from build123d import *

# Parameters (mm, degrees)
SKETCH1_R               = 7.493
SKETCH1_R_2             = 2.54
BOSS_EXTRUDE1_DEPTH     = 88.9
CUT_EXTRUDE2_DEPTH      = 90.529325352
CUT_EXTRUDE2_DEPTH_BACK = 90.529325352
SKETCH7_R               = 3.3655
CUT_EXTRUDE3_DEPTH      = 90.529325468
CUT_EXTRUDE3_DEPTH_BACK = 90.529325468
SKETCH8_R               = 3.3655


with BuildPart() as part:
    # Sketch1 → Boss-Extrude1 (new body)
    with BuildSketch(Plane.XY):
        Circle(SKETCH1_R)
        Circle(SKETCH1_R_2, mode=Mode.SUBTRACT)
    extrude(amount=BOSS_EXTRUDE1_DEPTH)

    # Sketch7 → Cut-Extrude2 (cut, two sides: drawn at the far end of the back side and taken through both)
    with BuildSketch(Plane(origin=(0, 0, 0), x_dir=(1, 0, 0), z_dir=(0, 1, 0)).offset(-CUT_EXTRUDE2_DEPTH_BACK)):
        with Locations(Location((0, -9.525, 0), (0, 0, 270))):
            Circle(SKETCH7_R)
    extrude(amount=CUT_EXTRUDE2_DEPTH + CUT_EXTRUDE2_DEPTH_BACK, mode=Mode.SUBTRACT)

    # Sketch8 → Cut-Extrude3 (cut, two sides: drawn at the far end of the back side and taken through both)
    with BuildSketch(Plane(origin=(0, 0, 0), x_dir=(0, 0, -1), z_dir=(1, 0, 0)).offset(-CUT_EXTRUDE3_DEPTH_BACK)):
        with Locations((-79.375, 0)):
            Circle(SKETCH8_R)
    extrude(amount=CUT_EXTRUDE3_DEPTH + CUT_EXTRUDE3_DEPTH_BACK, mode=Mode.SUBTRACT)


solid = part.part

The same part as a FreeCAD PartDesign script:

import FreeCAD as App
import Part
import Sketcher

V = App.Vector
Q = App.Units.Quantity

doc = App.newDocument("Part")
body = doc.addObject("PartDesign::Body", "Body")

# Sketch on XY plane
sketch1 = doc.addObject("Sketcher::SketchObject", "Sketch")
body.addObject(sketch1)
sketch1.AttachmentSupport = (doc.XY_Plane, [""])
sketch1.MapMode = "FlatFace"
sketch1.addGeometry([
    Part.Circle(V(0, 0, 0), V(0, 0, 1), 7.5),
    Part.Circle(V(0, 0, 0), V(0, 0, 1), 2.5),
], False)
sketch1.addConstraint([
    Sketcher.Constraint("Coincident", 0, 3, -1, 1),
    Sketcher.Constraint("Coincident", 1, 3, -1, 1),
    Sketcher.Constraint("Diameter", 1, Q("0.2 in")),
    Sketcher.Constraint("Diameter", 0, Q("0.59 in")),
])
pad1 = doc.addObject("PartDesign::Pad", "Pad")
body.addObject(pad1)
pad1.Profile = sketch1
pad1.Length = Q("3.5 in")

# Sketch on XZ plane
sketch2 = doc.addObject("Sketcher::SketchObject", "Sketch001")
body.addObject(sketch2)
sketch2.AttachmentSupport = (doc.XZ_Plane, [""])
sketch2.MapMode = "FlatFace"
sketch2.addGeometry(Part.Circle(V(0, 9.5, 0), V(0, 0, 1), 3.4), False)
sketch2.addConstraint([
    Sketcher.Constraint("PointOnObject", 0, 3, -2),
    Sketcher.Constraint("Diameter", 0, Q("0.265 in")),
    Sketcher.Constraint("DistanceY", -1, 1, 0, 3, Q("0.375 in")),
])
pocket1 = doc.addObject("PartDesign::Pocket", "Pocket")
body.addObject(pocket1)
pocket1.Profile = sketch2
pocket1.Type = "ThroughAll"
pocket1.Midplane = True

# Sketch on YZ plane
sketch3 = doc.addObject("Sketcher::SketchObject", "Sketch002")
body.addObject(sketch3)
sketch3.AttachmentSupport = (doc.YZ_Plane, [""])
sketch3.MapMode = "FlatFace"
sketch3.addGeometry(Part.Circle(V(0, 79.4, 0), V(0, 0, 1), 3.4), False)
sketch3.addConstraint([
    Sketcher.Constraint("PointOnObject", 0, 3, -2),
    Sketcher.Constraint("Diameter", 0, Q("0.265 in")),
    Sketcher.Constraint("DistanceY", -1, 1, 0, 3, Q("3.125 in")),
])
pocket2 = doc.addObject("PartDesign::Pocket", "Pocket001")
body.addObject(pocket2)
pocket2.Profile = sketch3
pocket2.Type = "ThroughAll"
pocket2.Midplane = True

doc.recompute()
